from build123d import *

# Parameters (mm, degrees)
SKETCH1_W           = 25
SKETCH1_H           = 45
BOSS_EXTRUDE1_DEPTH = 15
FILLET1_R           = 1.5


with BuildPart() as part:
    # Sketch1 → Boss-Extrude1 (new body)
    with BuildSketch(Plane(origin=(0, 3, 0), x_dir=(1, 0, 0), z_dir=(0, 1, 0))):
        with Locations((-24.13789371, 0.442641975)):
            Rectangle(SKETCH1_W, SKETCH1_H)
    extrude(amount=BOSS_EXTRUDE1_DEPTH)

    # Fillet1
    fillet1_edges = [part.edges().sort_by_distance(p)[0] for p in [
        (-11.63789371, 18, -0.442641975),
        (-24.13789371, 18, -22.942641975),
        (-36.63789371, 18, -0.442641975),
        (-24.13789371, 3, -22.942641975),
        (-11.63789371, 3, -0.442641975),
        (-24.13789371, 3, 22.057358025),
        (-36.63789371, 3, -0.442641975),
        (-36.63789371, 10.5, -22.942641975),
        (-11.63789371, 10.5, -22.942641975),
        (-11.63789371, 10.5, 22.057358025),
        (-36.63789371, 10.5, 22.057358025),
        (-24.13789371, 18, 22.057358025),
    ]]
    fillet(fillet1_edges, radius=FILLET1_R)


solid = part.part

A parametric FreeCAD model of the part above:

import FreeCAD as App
import Part
import Sketcher

doc = App.newDocument("Part")
body = doc.addObject("PartDesign::Body", "Body")

# Sketch on XZ plane
sketch1 = body.newObject("Sketcher::SketchObject", "Sketch")
sketch1.AttachmentSupport = (doc.getObject("XZ_Plane"), [""])
sketch1.MapMode = "FlatFace"
sketch1.AttachmentOffset = App.Placement(App.Vector(0, 0, -3), App.Rotation())
sketch1.addGeometry(Part.LineSegment(App.Vector(-37, -23, 0), App.Vector(-37, 22, 0)), False)
sketch1.addGeometry(Part.LineSegment(App.Vector(-37, 22, 0), App.Vector(-12, 22, 0)), False)
sketch1.addGeometry(Part.LineSegment(App.Vector(-12, 22, 0), App.Vector(-12, -23, 0)), False)
sketch1.addGeometry(Part.LineSegment(App.Vector(-12, -23, 0), App.Vector(-37, -23, 0)), False)
sketch1.addConstraint(Sketcher.Constraint("Coincident", 0, 2, 1, 1))
sketch1.addConstraint(Sketcher.Constraint("Coincident", 1, 2, 2, 1))
sketch1.addConstraint(Sketcher.Constraint("Coincident", 2, 2, 3, 1))
sketch1.addConstraint(Sketcher.Constraint("Coincident", 3, 2, 0, 1))
sketch1.addConstraint(Sketcher.Constraint("Vertical", 0))
sketch1.addConstraint(Sketcher.Constraint("Horizontal", 1))
sketch1.addConstraint(Sketcher.Constraint("Vertical", 2))
sketch1.addConstraint(Sketcher.Constraint("Horizontal", 3))
sketch1.addConstraint(Sketcher.Constraint("DistanceX", 1, 1, 1, 2, 25.0))
sketch1.addConstraint(Sketcher.Constraint("DistanceY", 0, 1, 0, 2, 45.0))
sketch1.addConstraint(Sketcher.Constraint("DistanceY", -1, 1, 0, 2, 22.057358))
sketch1.addConstraint(Sketcher.Constraint("DistanceX", 0, 2, -1, 1, 36.637894))
pad1 = body.newObject("PartDesign::Pad", "Pad")
pad1.Profile = sketch1
pad1.Length = 15
pad1.Reversed = True
doc.recompute()

fillet = body.newObject("PartDesign::Fillet", "Fillet")
fillet.Base = (pad1, ["Edge1"])
fillet.UseAllEdges = True
fillet.Radius = 1.5

doc.recompute()
